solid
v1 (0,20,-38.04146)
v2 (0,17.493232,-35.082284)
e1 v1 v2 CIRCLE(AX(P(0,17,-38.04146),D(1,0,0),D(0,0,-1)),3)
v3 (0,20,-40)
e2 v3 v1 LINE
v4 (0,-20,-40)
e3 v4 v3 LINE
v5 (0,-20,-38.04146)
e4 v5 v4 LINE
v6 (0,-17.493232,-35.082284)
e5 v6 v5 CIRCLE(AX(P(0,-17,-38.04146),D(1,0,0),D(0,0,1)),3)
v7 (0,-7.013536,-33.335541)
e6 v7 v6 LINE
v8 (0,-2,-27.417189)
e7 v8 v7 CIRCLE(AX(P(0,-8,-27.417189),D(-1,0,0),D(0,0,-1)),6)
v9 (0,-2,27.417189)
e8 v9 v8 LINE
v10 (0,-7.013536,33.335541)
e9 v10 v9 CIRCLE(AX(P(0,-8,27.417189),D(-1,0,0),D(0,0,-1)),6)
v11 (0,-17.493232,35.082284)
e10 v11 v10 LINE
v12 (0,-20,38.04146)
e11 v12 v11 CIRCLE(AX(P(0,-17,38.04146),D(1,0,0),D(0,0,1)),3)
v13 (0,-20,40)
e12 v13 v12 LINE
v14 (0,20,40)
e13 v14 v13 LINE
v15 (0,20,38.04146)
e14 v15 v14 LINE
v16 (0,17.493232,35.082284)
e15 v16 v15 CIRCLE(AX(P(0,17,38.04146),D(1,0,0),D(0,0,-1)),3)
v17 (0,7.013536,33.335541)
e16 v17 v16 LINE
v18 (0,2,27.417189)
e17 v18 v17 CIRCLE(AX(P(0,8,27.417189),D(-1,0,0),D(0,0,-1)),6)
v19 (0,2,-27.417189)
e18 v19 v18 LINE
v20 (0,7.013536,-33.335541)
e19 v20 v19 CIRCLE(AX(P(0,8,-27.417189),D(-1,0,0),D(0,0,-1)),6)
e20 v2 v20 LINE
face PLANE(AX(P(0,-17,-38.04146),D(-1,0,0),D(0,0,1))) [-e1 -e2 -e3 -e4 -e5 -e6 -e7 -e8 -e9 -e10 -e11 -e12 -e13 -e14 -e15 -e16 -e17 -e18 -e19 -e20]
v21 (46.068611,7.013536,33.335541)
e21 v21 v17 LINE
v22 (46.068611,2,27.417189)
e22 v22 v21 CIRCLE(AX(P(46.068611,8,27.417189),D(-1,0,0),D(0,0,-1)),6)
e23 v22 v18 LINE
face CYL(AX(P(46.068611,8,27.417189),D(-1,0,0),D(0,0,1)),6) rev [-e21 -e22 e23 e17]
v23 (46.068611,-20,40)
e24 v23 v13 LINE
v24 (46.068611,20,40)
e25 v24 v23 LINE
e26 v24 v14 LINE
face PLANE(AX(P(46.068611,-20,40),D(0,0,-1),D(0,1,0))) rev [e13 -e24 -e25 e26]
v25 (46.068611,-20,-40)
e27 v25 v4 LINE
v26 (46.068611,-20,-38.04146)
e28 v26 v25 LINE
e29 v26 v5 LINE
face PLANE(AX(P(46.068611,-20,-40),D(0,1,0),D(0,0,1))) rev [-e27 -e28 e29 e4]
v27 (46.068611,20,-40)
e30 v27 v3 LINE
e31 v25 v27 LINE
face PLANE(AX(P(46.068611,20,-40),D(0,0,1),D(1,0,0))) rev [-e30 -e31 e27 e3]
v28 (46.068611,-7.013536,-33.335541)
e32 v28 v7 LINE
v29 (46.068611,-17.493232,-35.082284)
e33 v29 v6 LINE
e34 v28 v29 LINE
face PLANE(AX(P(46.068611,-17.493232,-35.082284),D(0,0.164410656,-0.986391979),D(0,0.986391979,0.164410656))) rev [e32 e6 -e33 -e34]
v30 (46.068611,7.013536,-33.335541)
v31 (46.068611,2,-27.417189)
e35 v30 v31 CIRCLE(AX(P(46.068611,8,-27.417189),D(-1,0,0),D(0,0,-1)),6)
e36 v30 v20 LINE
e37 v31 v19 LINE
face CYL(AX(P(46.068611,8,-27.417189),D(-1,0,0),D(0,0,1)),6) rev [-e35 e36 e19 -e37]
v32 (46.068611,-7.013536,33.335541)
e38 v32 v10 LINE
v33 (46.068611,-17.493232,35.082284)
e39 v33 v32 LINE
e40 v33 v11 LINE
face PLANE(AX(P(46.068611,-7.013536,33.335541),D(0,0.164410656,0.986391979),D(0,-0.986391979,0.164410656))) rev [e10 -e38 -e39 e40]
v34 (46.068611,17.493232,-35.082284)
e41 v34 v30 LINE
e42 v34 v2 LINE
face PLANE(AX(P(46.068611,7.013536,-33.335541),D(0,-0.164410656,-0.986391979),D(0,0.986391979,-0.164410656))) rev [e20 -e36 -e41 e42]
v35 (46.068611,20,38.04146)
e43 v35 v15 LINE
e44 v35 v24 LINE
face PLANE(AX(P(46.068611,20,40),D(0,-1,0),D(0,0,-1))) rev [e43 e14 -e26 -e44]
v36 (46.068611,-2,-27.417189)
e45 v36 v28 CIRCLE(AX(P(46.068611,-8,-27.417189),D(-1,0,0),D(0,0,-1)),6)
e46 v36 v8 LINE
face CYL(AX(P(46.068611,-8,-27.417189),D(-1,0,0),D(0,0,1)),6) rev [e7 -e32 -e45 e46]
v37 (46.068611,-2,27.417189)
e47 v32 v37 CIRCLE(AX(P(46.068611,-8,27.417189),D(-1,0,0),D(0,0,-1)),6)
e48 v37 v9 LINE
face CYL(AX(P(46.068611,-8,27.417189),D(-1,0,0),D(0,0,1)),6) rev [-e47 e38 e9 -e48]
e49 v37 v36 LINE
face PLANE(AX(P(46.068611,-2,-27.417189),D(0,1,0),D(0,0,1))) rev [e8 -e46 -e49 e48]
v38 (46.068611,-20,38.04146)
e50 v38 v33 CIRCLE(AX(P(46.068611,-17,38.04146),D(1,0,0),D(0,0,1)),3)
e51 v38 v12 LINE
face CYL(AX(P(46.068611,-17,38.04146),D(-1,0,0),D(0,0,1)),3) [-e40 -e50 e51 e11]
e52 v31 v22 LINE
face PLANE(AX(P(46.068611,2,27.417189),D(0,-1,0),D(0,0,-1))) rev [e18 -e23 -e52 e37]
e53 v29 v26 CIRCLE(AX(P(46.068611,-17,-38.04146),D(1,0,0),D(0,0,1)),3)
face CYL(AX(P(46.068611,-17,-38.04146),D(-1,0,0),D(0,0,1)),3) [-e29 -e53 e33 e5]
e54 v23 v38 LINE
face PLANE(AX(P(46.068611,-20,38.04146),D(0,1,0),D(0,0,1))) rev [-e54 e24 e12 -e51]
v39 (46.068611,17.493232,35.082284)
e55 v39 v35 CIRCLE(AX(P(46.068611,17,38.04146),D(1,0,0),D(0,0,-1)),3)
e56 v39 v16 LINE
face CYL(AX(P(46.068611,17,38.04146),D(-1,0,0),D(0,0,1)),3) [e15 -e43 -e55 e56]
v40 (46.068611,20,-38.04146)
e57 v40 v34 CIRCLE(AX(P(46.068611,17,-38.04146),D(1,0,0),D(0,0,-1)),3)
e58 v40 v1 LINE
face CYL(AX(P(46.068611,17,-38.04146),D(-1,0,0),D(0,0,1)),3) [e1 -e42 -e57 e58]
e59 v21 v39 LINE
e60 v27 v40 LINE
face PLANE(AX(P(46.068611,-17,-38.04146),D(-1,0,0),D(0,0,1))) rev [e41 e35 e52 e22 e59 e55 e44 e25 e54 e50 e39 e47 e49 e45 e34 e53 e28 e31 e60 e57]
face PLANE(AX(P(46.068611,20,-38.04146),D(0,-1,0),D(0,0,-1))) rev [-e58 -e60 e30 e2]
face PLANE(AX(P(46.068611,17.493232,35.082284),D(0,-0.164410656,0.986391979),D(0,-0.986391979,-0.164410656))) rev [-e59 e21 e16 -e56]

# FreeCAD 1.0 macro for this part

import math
import FreeCAD as App
import Part
import Sketcher

doc = App.newDocument("Part")
params = doc.addObject("Spreadsheet::Sheet", "Params")
for row, (alias, value) in enumerate([
    ("sketch1_radius", "3 mm"),
    ("sketch1_radius2", "6 mm"),
    ("sketch1_width", "40 mm"),
    ("pad1_length", "46.068611 mm"),
], start=1):
    params.set(f"A{row}", alias)
    params.set(f"B{row}", "=" + value)
    params.setAlias(f"B{row}", alias)

body = doc.addObject("PartDesign::Body", "Body")

sketch1 = body.newObject("Sketcher::SketchObject", "Sketch")
sketch1.AttachmentSupport = (doc.getObject("YZ_Plane"), [""])
sketch1.MapMode = "FlatFace"
sketch1.addGeometry([
    Part.LineSegment(App.Vector(-20, -38, 0), App.Vector(-20, -40, 0)),
    Part.LineSegment(App.Vector(-20, -40, 0), App.Vector(20, -40, 0)),
    Part.LineSegment(App.Vector(20, -40, 0), App.Vector(20, -38, 0)),
    Part.ArcOfCircle(Part.Circle(App.Vector(17, -38, 0), App.Vector(0, 0, 1), 3), math.radians(0), math.radians(81)),
    Part.LineSegment(App.Vector(17.5, -35.1, 0), App.Vector(7, -33.3, 0)),
    Part.ArcOfCircle(Part.Circle(App.Vector(8, -27.4, 0), App.Vector(0, 0, 1), 6), math.radians(180), math.radians(261)),
    Part.LineSegment(App.Vector(2, -27.4, 0), App.Vector(2, 27.4, 0)),
    Part.ArcOfCircle(Part.Circle(App.Vector(8, 27.4, 0), App.Vector(0, 0, 1), 6), math.radians(99), math.radians(180)),
    Part.LineSegment(App.Vector(7, 33.3, 0), App.Vector(17.5, 35.1, 0)),
    Part.ArcOfCircle(Part.Circle(App.Vector(17, 38, 0), App.Vector(0, 0, 1), 3), math.radians(-81), math.radians(0)),
    Part.LineSegment(App.Vector(20, 38, 0), App.Vector(20, 40, 0)),
    Part.LineSegment(App.Vector(20, 40, 0), App.Vector(-20, 40, 0)),
    Part.LineSegment(App.Vector(-20, 40, 0), App.Vector(-20, 38, 0)),
    Part.ArcOfCircle(Part.Circle(App.Vector(-17, 38, 0), App.Vector(0, 0, 1), 3), math.radians(180), math.radians(261)),
    Part.LineSegment(App.Vector(-17.5, 35.1, 0), App.Vector(-7, 33.3, 0)),
    Part.ArcOfCircle(Part.Circle(App.Vector(-8, 27.4, 0), App.Vector(0, 0, 1), 6), math.radians(0), math.radians(81)),
    Part.LineSegment(App.Vector(-2, 27.4, 0), App.Vector(-2, -27.4, 0)),
    Part.ArcOfCircle(Part.Circle(App.Vector(-8, -27.4, 0), App.Vector(0, 0, 1), 6), math.radians(-81), math.radians(0)),
    Part.LineSegment(App.Vector(-7, -33.3, 0), App.Vector(-17.5, -35.1, 0)),
    Part.ArcOfCircle(Part.Circle(App.Vector(-17, -38, 0), App.Vector(0, 0, 1), 3), math.radians(99), math.radians(180)),
], False)
sketch1.addConstraint([
    Sketcher.Constraint("Coincident", 0, 2, 1, 1),
    Sketcher.Constraint("Coincident", 1, 2, 2, 1),
    Sketcher.Constraint("Tangent", 2, 2, 3, 1),
    Sketcher.Constraint("Tangent", 3, 2, 4, 1),
    Sketcher.Constraint("Tangent", 4, 2, 5, 2),
    Sketcher.Constraint("Tangent", 5, 1, 6, 1),
    Sketcher.Constraint("Tangent", 6, 2, 7, 2),
    Sketcher.Constraint("Tangent", 7, 1, 8, 1),
    Sketcher.Constraint("Tangent", 8, 2, 9, 1),
    Sketcher.Constraint("Tangent", 9, 2, 10, 1),
    Sketcher.Constraint("Coincident", 10, 2, 11, 1),
    Sketcher.Constraint("Coincident", 11, 2, 12, 1),
    Sketcher.Constraint("Tangent", 12, 2, 13, 1),
    Sketcher.Constraint("Tangent", 13, 2, 14, 1),
    Sketcher.Constraint("Tangent", 14, 2, 15, 2),
    Sketcher.Constraint("Tangent", 15, 1, 16, 1),
    Sketcher.Constraint("Tangent", 16, 2, 17, 2),
    Sketcher.Constraint("Tangent", 17, 1, 18, 1),
    Sketcher.Constraint("Tangent", 18, 2, 19, 1),
    Sketcher.Constraint("Tangent", 19, 2, 0, 1),
    Sketcher.Constraint("Vertical", 0),
    Sketcher.Constraint("Horizontal", 1),
    Sketcher.Constraint("Vertical", 2),
    Sketcher.Constraint("Vertical", 6),
    Sketcher.Constraint("Vertical", 10),
    Sketcher.Constraint("Horizontal", 11),
    Sketcher.Constraint("Vertical", 12),
    Sketcher.Constraint("Vertical", 16),
    Sketcher.Constraint("Equal", 5, 7),
    Sketcher.Constraint("Equal", 3, 9),
    Sketcher.Constraint("Equal", 9, 13),
    Sketcher.Constraint("Equal", 7, 15),
    Sketcher.Constraint("Equal", 15, 17),
    Sketcher.Constraint("Equal", 13, 19),
    Sketcher.Constraint("Symmetric", 3, 3, 13, 3, -1, 1),
    Sketcher.Constraint("Symmetric", 5, 3, 15, 3, -1, 1),
    Sketcher.Constraint("Symmetric", 9, 3, 19, 3, -1, 1),
    Sketcher.Constraint("Symmetric", 9, 3, 13, 3, -2),
    Sketcher.Constraint("Parallel", 8, 18),
    Sketcher.Constraint("Horizontal", 7, 3, 15, 3),
    Sketcher.Constraint("Equal", 2, 10),
    Sketcher.Constraint("Radius", 3, 3.0),
    Sketcher.Constraint("Radius", 5, 6.0),
    Sketcher.Constraint("DistanceX", 1, 1, 1, 2, 40.0),
    Sketcher.Constraint("DistanceX", -1, 1, 5, 3, 8.0),
    Sketcher.Constraint("DistanceY", 0, 2, -1, 1, 40.0),
    Sketcher.Constraint("DistanceY", 0, 2, 0, 1, 1.95854),
    Sketcher.Constraint("Distance", 4, 10.624271),
])
sketch1.setExpression("Constraints[41]", "Params.sketch1_radius")
sketch1.setExpression("Constraints[42]", "Params.sketch1_radius2")
sketch1.setExpression("Constraints[43]", "Params.sketch1_width")
pad1 = body.newObject("PartDesign::Pad", "Pad")
pad1.Profile = sketch1
pad1.setExpression("Length", "Params.pad1_length")

doc.recompute()
